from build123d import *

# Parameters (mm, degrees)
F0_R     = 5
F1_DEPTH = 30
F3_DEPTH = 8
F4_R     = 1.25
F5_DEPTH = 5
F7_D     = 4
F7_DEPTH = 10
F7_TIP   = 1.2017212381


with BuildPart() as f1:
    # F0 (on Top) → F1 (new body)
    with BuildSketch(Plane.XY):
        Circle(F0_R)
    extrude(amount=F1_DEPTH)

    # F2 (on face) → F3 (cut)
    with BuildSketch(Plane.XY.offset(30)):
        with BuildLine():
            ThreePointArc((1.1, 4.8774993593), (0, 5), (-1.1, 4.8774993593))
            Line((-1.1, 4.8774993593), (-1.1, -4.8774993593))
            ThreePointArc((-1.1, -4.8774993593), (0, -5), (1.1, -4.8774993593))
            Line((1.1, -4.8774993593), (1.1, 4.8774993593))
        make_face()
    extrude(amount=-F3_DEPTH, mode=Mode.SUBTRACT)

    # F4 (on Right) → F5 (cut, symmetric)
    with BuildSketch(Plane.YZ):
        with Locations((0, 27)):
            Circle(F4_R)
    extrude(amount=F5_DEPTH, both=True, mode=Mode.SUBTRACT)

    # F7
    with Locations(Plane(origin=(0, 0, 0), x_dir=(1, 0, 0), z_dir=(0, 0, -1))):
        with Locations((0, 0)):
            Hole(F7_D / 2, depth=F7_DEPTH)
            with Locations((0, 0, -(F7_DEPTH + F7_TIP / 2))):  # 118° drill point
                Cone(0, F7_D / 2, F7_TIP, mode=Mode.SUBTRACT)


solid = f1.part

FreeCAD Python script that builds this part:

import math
import FreeCAD as App
import Part
import Sketcher
Q = App.Units.Quantity

doc = App.newDocument("Part")
body = doc.addObject("PartDesign::Body", "Body")

sketch1 = body.newObject("Sketcher::SketchObject", "Sketch")
sketch1.AttachmentSupport = (doc.getObject("XY_Plane"), [""])
sketch1.MapMode = "FlatFace"
sketch1.addGeometry(Part.Circle(App.Vector(0, 0, 0), App.Vector(0, 0, 1), 5), False)
sketch1.addConstraint(Sketcher.Constraint("Coincident", 0, 3, -1, 1))
sketch1.addConstraint(Sketcher.Constraint("Diameter", 0, Q("10 mm")))
pad1 = body.newObject("PartDesign::Pad", "Pad")
pad1.Profile = sketch1
pad1.Length = 30

sketch2 = body.newObject("Sketcher::SketchObject", "Sketch001")
sketch2.AttachmentSupport = (doc.getObject("XY_Plane"), [""])
sketch2.MapMode = "FlatFace"
sketch2.AttachmentOffset = App.Placement(App.Vector(0, 0, 30), App.Rotation())
sketch2.addGeometry(Part.ArcOfCircle(Part.Circle(App.Vector(0, 0, 0), App.Vector(0, 0, 1), 5), math.radians(77), math.radians(103)), False)
sketch2.addGeometry(Part.LineSegment(App.Vector(-1.1, 4.9, 0), App.Vector(-1.1, -4.9, 0)), False)
sketch2.addGeometry(Part.ArcOfCircle(Part.Circle(App.Vector(0, 0, 0), App.Vector(0, 0, 1), 5), math.radians(-103), math.radians(-77)), False)
sketch2.addGeometry(Part.LineSegment(App.Vector(1.1, -4.9, 0), App.Vector(1.1, 4.9, 0)), False)
sketch2.addConstraint(Sketcher.Constraint("Coincident", 0, 2, 1, 1))
sketch2.addConstraint(Sketcher.Constraint("Coincident", 1, 2, 2, 1))
sketch2.addConstraint(Sketcher.Constraint("Coincident", 2, 2, 3, 1))
sketch2.addConstraint(Sketcher.Constraint("Coincident", 3, 2, 0, 1))
sketch2.addConstraint(Sketcher.Constraint("Vertical", 1))
sketch2.addConstraint(Sketcher.Constraint("Vertical", 3))
sketch2.addConstraint(Sketcher.Constraint("Coincident", 0, 3, -1, 1))
sketch2.addConstraint(Sketcher.Constraint("Coincident", 2, 3, -1, 1))
sketch2.addConstraint(Sketcher.Constraint("Equal", 0, 2))
sketch2.addConstraint(Sketcher.Constraint("Horizontal", 1, 2, 2, 2))
sketch2.addConstraint(Sketcher.Constraint("Radius", 0, Q("5 mm")))
sketch2.addConstraint(Sketcher.Constraint("DistanceX", 0, 2, -1, 1, Q("1.1 mm")))
pocket1 = body.newObject("PartDesign::Pocket", "Pocket")
pocket1.Profile = sketch2
pocket1.Length = 8

sketch3 = body.newObject("Sketcher::SketchObject", "Sketch002")
sketch3.AttachmentSupport = (doc.getObject("YZ_Plane"), [""])
sketch3.MapMode = "FlatFace"
sketch3.addGeometry(Part.Circle(App.Vector(0, 27, 0), App.Vector(0, 0, 1), 1.2), False)
sketch3.addConstraint(Sketcher.Constraint("PointOnObject", 0, 3, -2))
sketch3.addConstraint(Sketcher.Constraint("Diameter", 0, Q("2.5 mm")))
sketch3.addConstraint(Sketcher.Constraint("DistanceY", -1, 1, 0, 3, Q("27 mm")))
pocket2 = body.newObject("PartDesign::Pocket", "Pocket001")
pocket2.Profile = sketch3
pocket2.Length = 10
pocket2.Midplane = True

sketch4 = body.newObject("Sketcher::SketchObject", "Sketch003")
sketch4.AttachmentSupport = (doc.getObject("XY_Plane"), [""])
sketch4.MapMode = "FlatFace"
sketch4.addGeometry(Part.Circle(App.Vector(0, 0, 0), App.Vector(0, 0, 1), 2), False)
sketch4.addConstraint(Sketcher.Constraint("Coincident", 0, 3, -1, 1))
sketch4.addConstraint(Sketcher.Constraint("Diameter", 0, Q("4 mm")))
doc.recompute()
hole = body.newObject("PartDesign::Hole", "Hole")
hole.Profile = sketch4
hole.ThreadType = "None"
hole.Diameter = 4
hole.DepthType = "Dimension"
hole.Depth = 10
hole.DrillPoint = "Angled"
hole.DrillPointAngle = 118
hole.Reversed = True

doc.recompute()
